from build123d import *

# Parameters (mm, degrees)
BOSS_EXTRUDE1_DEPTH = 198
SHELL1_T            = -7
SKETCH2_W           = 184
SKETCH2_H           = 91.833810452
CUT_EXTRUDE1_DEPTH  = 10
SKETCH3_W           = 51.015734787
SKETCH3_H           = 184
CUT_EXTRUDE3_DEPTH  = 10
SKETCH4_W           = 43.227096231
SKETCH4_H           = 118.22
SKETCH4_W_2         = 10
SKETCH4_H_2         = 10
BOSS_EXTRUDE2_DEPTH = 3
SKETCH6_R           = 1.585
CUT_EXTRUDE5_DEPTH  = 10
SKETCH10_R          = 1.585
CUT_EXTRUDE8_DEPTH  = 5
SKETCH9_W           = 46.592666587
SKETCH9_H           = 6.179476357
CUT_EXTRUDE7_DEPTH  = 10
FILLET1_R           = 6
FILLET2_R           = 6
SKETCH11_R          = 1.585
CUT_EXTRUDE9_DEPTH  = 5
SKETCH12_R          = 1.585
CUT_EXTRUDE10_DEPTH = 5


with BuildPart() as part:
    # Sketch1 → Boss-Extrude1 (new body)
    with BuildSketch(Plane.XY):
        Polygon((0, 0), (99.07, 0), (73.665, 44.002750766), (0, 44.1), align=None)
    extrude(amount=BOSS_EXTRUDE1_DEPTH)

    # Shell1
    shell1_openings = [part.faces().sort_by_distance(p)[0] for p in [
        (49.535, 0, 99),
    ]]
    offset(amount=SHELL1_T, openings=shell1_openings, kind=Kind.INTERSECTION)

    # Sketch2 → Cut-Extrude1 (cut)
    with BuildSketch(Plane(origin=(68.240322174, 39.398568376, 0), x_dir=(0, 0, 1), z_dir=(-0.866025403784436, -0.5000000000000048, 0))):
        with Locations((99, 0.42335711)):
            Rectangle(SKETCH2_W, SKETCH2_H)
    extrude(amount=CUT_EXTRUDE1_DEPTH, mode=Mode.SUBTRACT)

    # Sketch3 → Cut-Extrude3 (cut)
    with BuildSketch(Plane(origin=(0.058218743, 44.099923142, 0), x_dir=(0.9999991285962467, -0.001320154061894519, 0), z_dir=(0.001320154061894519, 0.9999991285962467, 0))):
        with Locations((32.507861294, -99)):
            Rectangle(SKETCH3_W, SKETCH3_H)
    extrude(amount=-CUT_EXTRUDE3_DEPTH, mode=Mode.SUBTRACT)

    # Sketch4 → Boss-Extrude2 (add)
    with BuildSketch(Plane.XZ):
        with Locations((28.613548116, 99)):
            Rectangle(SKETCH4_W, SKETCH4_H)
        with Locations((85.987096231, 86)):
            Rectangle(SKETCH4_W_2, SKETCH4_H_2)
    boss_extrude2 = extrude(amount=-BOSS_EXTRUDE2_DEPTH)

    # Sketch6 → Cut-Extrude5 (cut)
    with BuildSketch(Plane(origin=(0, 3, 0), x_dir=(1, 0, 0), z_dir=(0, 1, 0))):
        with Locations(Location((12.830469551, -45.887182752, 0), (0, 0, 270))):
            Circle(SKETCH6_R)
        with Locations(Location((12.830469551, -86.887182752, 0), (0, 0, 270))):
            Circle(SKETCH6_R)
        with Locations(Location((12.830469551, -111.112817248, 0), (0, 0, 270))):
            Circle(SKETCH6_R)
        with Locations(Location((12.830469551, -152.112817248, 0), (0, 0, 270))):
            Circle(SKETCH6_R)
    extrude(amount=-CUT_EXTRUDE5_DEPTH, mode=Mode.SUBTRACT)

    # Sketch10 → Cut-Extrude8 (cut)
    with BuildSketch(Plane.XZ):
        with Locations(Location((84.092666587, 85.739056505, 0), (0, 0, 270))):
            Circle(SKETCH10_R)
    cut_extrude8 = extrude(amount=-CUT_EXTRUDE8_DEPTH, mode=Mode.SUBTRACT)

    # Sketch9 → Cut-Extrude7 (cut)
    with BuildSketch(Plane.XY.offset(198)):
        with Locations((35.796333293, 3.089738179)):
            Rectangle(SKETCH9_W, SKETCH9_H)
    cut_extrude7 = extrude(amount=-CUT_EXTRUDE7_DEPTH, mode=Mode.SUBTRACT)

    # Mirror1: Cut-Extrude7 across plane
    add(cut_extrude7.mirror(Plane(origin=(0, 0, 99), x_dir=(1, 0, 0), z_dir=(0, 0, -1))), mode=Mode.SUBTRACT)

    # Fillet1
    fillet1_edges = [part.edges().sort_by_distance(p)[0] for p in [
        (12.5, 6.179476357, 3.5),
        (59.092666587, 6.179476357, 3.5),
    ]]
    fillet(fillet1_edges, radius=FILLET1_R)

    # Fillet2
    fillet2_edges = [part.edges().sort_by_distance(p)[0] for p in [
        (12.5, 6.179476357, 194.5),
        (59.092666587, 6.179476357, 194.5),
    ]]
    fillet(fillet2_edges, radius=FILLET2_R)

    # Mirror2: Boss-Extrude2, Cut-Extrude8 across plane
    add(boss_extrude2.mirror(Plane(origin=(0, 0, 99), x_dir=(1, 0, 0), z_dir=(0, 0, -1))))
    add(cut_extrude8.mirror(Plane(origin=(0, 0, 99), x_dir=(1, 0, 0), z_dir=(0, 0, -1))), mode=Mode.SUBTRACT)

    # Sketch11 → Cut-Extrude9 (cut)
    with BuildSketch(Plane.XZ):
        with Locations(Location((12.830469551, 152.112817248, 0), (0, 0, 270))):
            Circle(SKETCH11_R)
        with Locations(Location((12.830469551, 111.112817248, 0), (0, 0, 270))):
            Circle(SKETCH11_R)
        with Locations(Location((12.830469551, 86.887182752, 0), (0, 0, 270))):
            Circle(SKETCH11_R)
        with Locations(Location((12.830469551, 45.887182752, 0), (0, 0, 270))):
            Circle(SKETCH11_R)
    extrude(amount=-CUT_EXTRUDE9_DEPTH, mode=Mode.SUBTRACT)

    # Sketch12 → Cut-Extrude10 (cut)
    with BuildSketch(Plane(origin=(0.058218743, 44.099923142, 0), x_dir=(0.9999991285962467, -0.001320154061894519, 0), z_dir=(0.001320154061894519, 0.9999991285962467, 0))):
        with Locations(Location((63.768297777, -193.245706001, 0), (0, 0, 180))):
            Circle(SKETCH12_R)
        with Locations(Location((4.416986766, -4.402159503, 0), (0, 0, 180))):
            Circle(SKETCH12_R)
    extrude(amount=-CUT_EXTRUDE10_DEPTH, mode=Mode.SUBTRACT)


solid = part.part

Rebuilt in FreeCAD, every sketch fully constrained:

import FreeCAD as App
import Part
import Sketcher
from FreeCAD import Vector
Q = App.Units.Quantity


def edges_at(feature, points):
    """Names of the edges that pass closest to the given points."""
    edges = feature.Shape.Edges
    near = lambda p: min(range(len(edges)), key=lambda i: edges[i].distToShape(Part.Vertex(*p))[0])
    return sorted({f"Edge{near(p) + 1}" for p in points})


def faces_at(feature, points):
    """Names of the faces that lie closest to the given points."""
    faces = feature.Shape.Faces
    near = lambda p: min(range(len(faces)), key=lambda i: faces[i].distToShape(Part.Vertex(*p))[0])
    return sorted({f"Face{near(p) + 1}" for p in points})

doc = App.newDocument("Part")
params = doc.addObject("Spreadsheet::Sheet", "Params")
for row, (alias, value) in enumerate([
    ("sketch1_height", "44.1 mm"),
    ("sketch1_width", "99.07 mm"),
    ("sketch1_length", "50.81 mm"),
    ("pad1_length", "198 mm"),
    ("thickness_wall", "7 mm"),
    ("sketch2_width", "184 mm"),
    ("pocket1_length", "10 mm"),
    ("sketch3_height", "184 mm"),
    ("pocket2_length", "10 mm"),
    ("sketch4_width", "10 mm"),
    ("sketch4_height", "118.22 mm"),
    ("pad2_length", "3 mm"),
    ("sketch5_diameter", "3.17 mm"),
    ("pocket3_length", "10 mm"),
    ("sketch6_diameter", "3.17 mm"),
    ("pocket4_length", "5 mm"),
    ("pocket5_length", "10 mm"),
    ("fillet_radius", "6 mm"),
    ("fillet2_radius", "6 mm"),
    ("sketch8_diameter", "3.17 mm"),
    ("pocket6_length", "5 mm"),
    ("sketch9_diameter", "3.17 mm"),
    ("pocket7_length", "5 mm"),
], start=1):
    params.set(f"A{row}", alias)
    params.set(f"B{row}", "=" + value)
    params.setAlias(f"B{row}", alias)

body = doc.addObject("PartDesign::Body", "Body")

# Sketch on XY plane
sketch1 = doc.addObject("Sketcher::SketchObject", "Sketch")
body.addObject(sketch1)
sketch1.AttachmentSupport = (doc.XY_Plane, [""])
sketch1.MapMode = "FlatFace"
sketch1.addGeometry([
    Part.LineSegment(Vector(0, 0, 0), Vector(99.07, 0, 0)),
    Part.LineSegment(Vector(99.07, 0, 0), Vector(73.665, 44.002751, 0)),
    Part.LineSegment(Vector(73.665, 44.002751, 0), Vector(0, 44.1, 0)),
    Part.LineSegment(Vector(0, 44.1, 0), Vector(0, 0, 0)),
], False)
sketch1.addConstraint([
    Sketcher.Constraint("Coincident", 0, 2, 1, 1),
    Sketcher.Constraint("Coincident", 1, 2, 2, 1),
    Sketcher.Constraint("Coincident", 2, 2, 3, 1),
    Sketcher.Constraint("Coincident", 3, 2, 0, 1),
    Sketcher.Constraint("Horizontal", 0),
    Sketcher.Constraint("Vertical", 3),
    Sketcher.Constraint("Coincident", 3, 2, -1, 1),
    Sketcher.Constraint("Angle", 1, Q("120 deg")),
    Sketcher.Constraint("DistanceY", 3, 2, 3, 1, Q("44.1 mm")),
    Sketcher.Constraint("DistanceX", 0, 1, 0, 2, Q("99.07 mm")),
    Sketcher.Constraint("Distance", 1, Q("50.81 mm")),
])
sketch1.setExpression("Constraints[8]", "Params.sketch1_height")
sketch1.setExpression("Constraints[9]", "Params.sketch1_width")
sketch1.setExpression("Constraints[10]", "Params.sketch1_length")
pad1 = doc.addObject("PartDesign::Pad", "Pad")
body.addObject(pad1)
pad1.Profile = sketch1
pad1.setExpression("Length", "Params.pad1_length")
doc.recompute()

thickness = doc.addObject("PartDesign::Thickness", "Thickness")
body.addObject(thickness)
thickness.Base = (pad1, faces_at(pad1, [(49.535, 0, 99)]))
thickness.setExpression("Value", "Params.thickness_wall")
thickness.Reversed = True
thickness.Join = "Intersection"

# Sketch on an angled plane
sketch2 = doc.addObject("Sketcher::SketchObject", "Sketch001")
body.addObject(sketch2)
sketch2.Placement = App.Placement(Vector(68.240322, 39.398568, 0), App.Rotation(Vector(0, 0, 1), Vector(-0.5, 0.866025404, 0), Vector(-0.866025404, -0.5, 0), "ZXY"))
sketch2.addGeometry([
    Part.LineSegment(Vector(7, 46.340262, 0), Vector(7, -45.493548, 0)),
    Part.LineSegment(Vector(7, -45.493548, 0), Vector(191, -45.493548, 0)),
    Part.LineSegment(Vector(191, -45.493548, 0), Vector(191, 46.340262, 0)),
    Part.LineSegment(Vector(191, 46.340262, 0), Vector(7, 46.340262, 0)),
], False)
sketch2.addConstraint([
    Sketcher.Constraint("Coincident", 0, 2, 1, 1),
    Sketcher.Constraint("Coincident", 1, 2, 2, 1),
    Sketcher.Constraint("Coincident", 2, 2, 3, 1),
    Sketcher.Constraint("Coincident", 3, 2, 0, 1),
    Sketcher.Constraint("Vertical", 0),
    Sketcher.Constraint("Horizontal", 1),
    Sketcher.Constraint("Vertical", 2),
    Sketcher.Constraint("Horizontal", 3),
    Sketcher.Constraint("DistanceX", 1, 1, 1, 2, Q("184 mm")),
    Sketcher.Constraint("DistanceX", -1, 1, 0, 2, Q("7 mm")),
    Sketcher.Constraint("DistanceY", 0, 2, 0, 1, Q("91.83381 mm")),
    Sketcher.Constraint("DistanceY", 0, 2, -1, 1, Q("45.493548 mm")),
])
sketch2.setExpression("Constraints[8]", "Params.sketch2_width")
pocket1 = doc.addObject("PartDesign::Pocket", "Pocket")
body.addObject(pocket1)
pocket1.Profile = sketch2
pocket1.setExpression("Length", "Params.pocket1_length")
pocket1.Reversed = True

# Sketch on an angled plane
sketch3 = doc.addObject("Sketcher::SketchObject", "Sketch002")
body.addObject(sketch3)
sketch3.Placement = App.Placement(Vector(0.058219, 44.099923, 0), App.Rotation(Vector(0.999999129, -0.001320154, 0), Vector(0, 0, -1.000000001), Vector(0.001320154, 0.999999129, 0), "ZXY"))
sketch3.addGeometry([
    Part.LineSegment(Vector(6.999994, -7, 0), Vector(6.999994, -191, 0)),
    Part.LineSegment(Vector(6.999994, -191, 0), Vector(58.015729, -191, 0)),
    Part.LineSegment(Vector(58.015729, -191, 0), Vector(58.015729, -7, 0)),
    Part.LineSegment(Vector(58.015729, -7, 0), Vector(6.999994, -7, 0)),
], False)
sketch3.addConstraint([
    Sketcher.Constraint("Coincident", 0, 2, 1, 1),
    Sketcher.Constraint("Coincident", 1, 2, 2, 1),
    Sketcher.Constraint("Coincident", 2, 2, 3, 1),
    Sketcher.Constraint("Coincident", 3, 2, 0, 1),
    Sketcher.Constraint("Vertical", 0),
    Sketcher.Constraint("Horizontal", 1),
    Sketcher.Constraint("Vertical", 2),
    Sketcher.Constraint("Horizontal", 3),
    Sketcher.Constraint("DistanceY", 0, 2, 0, 1, Q("184 mm")),
    Sketcher.Constraint("DistanceY", 0, 2, -1, 1, Q("191 mm")),
    Sketcher.Constraint("DistanceX", 1, 1, 1, 2, Q("51.015735 mm")),
    Sketcher.Constraint("DistanceX", -1, 1, 1, 2, Q("58.015729 mm")),
])
sketch3.setExpression("Constraints[8]", "Params.sketch3_height")
pocket2 = doc.addObject("PartDesign::Pocket", "Pocket001")
body.addObject(pocket2)
pocket2.Profile = sketch3
pocket2.setExpression("Length", "Params.pocket2_length")

# Sketch on XZ plane
sketch4 = doc.addObject("Sketcher::SketchObject", "Sketch003")
body.addObject(sketch4)
sketch4.AttachmentSupport = (doc.XZ_Plane, [""])
sketch4.MapMode = "FlatFace"
sketch4.addGeometry([
    Part.LineSegment(Vector(7, 158.11, 0), Vector(7, 39.89, 0)),  # 0
    Part.LineSegment(Vector(7, 39.89, 0), Vector(50.227096, 39.89, 0)),  # 1
    Part.LineSegment(Vector(50.227096, 39.89, 0), Vector(50.227096, 158.11, 0)),  # 2
    Part.LineSegment(Vector(50.227096, 158.11, 0), Vector(7, 158.11, 0)),  # 3
    Part.LineSegment(Vector(80.987096, 91, 0), Vector(80.987096, 81, 0)),  # 4
    Part.LineSegment(Vector(80.987096, 81, 0), Vector(90.987096, 81, 0)),  # 5
    Part.LineSegment(Vector(90.987096, 81, 0), Vector(90.987096, 91, 0)),  # 6
    Part.LineSegment(Vector(90.987096, 91, 0), Vector(80.987096, 91, 0)),  # 7
], False)
sketch4.addConstraint([
    Sketcher.Constraint("Coincident", 0, 2, 1, 1),
    Sketcher.Constraint("Coincident", 1, 2, 2, 1),
    Sketcher.Constraint("Coincident", 2, 2, 3, 1),
    Sketcher.Constraint("Coincident", 3, 2, 0, 1),
    Sketcher.Constraint("Coincident", 4, 2, 5, 1),
    Sketcher.Constraint("Coincident", 5, 2, 6, 1),
    Sketcher.Constraint("Coincident", 6, 2, 7, 1),
    Sketcher.Constraint("Coincident", 7, 2, 4, 1),
    Sketcher.Constraint("Vertical", 0),
    Sketcher.Constraint("Horizontal", 1),
    Sketcher.Constraint("Vertical", 2),
    Sketcher.Constraint("Horizontal", 3),
    Sketcher.Constraint("Vertical", 4),
    Sketcher.Constraint("Horizontal", 5),
    Sketcher.Constraint("Vertical", 6),
    Sketcher.Constraint("Horizontal", 7),
    Sketcher.Constraint("Equal", 7, 4),
    Sketcher.Constraint("DistanceX", 5, 1, 5, 2, Q("10 mm")),
    Sketcher.Constraint("DistanceX", -1, 1, 0, 2, Q("7 mm")),
    Sketcher.Constraint("DistanceY", -1, 1, 4, 2, Q("81 mm")),
    Sketcher.Constraint("DistanceY", 0, 2, 0, 1, Q("118.22 mm")),
    Sketcher.Constraint("DistanceY", -1, 1, 0, 2, Q("39.89 mm")),
    Sketcher.Constraint("DistanceX", 1, 2, 4, 2, Q("30.76 mm")),
    Sketcher.Constraint("DistanceX", 1, 1, 1, 2, Q("43.227096 mm")),
])
sketch4.setExpression("Constraints[17]", "Params.sketch4_width")
sketch4.setExpression("Constraints[20]", "Params.sketch4_height")
pad2 = doc.addObject("PartDesign::Pad", "Pad001")
body.addObject(pad2)
pad2.Profile = sketch4
pad2.setExpression("Length", "Params.pad2_length")
pad2.Reversed = True

# Sketch on XZ plane
sketch5 = doc.addObject("Sketcher::SketchObject", "Sketch004")
body.addObject(sketch5)
sketch5.AttachmentSupport = (doc.XZ_Plane, [""])
sketch5.MapMode = "FlatFace"
sketch5.AttachmentOffset = App.Placement(Vector(0, 0, -3), App.Rotation())
sketch5.addGeometry([
    Part.Circle(Vector(12.83047, 45.887183, 0), Vector(0, 0, 1), 1.585),
    Part.Circle(Vector(12.83047, 86.887183, 0), Vector(0, 0, 1), 1.585),
    Part.Circle(Vector(12.83047, 111.112817, 0), Vector(0, 0, 1), 1.585),
    Part.Circle(Vector(12.83047, 152.112817, 0), Vector(0, 0, 1), 1.585),
], False)
sketch5.addConstraint([
    Sketcher.Constraint("Equal", 0, 1),
    Sketcher.Constraint("Equal", 1, 2),
    Sketcher.Constraint("Equal", 2, 3),
    Sketcher.Constraint("Vertical", 0, 3, 1, 3),
    Sketcher.Constraint("Vertical", 1, 3, 2, 3),
    Sketcher.Constraint("Vertical", 2, 3, 3, 3),
    Sketcher.Constraint("Diameter", 0, Q("3.17 mm")),
    Sketcher.Constraint("DistanceY", 0, 3, 1, 3, Q("41 mm")),
    Sketcher.Constraint("DistanceY", 2, 3, 3, 3, Q("41 mm")),
    Sketcher.Constraint("DistanceX", -1, 1, 0, 3, Q("12.83047 mm")),
    Sketcher.Constraint("DistanceY", -1, 1, 0, 3, Q("45.887183 mm")),
    Sketcher.Constraint("DistanceY", -1, 1, 2, 3, Q("111.112817 mm")),
])
sketch5.setExpression("Constraints[6]", "Params.sketch5_diameter")
pocket3 = doc.addObject("PartDesign::Pocket", "Pocket002")
body.addObject(pocket3)
pocket3.Profile = sketch5
pocket3.setExpression("Length", "Params.pocket3_length")
pocket3.Reversed = True

# Sketch on XZ plane
sketch6 = doc.addObject("Sketcher::SketchObject", "Sketch005")
body.addObject(sketch6)
sketch6.AttachmentSupport = (doc.XZ_Plane, [""])
sketch6.MapMode = "FlatFace"
sketch6.addGeometry(Part.Circle(Vector(84.092667, 85.739057, 0), Vector(0, 0, 1), 1.585), False)
sketch6.addConstraint([
    Sketcher.Constraint("Diameter", 0, Q("3.17 mm")),
    Sketcher.Constraint("DistanceX", -1, 1, 0, 3, Q("84.092667 mm")),
    Sketcher.Constraint("DistanceY", -1, 1, 0, 3, Q("85.739057 mm")),
])
sketch6.setExpression("Constraints[0]", "Params.sketch6_diameter")
pocket4 = doc.addObject("PartDesign::Pocket", "Pocket003")
body.addObject(pocket4)
pocket4.Profile = sketch6
pocket4.setExpression("Length", "Params.pocket4_length")

# Sketch on XY plane
sketch7 = doc.addObject("Sketcher::SketchObject", "Sketch006")
body.addObject(sketch7)
sketch7.AttachmentSupport = (doc.XY_Plane, [""])
sketch7.MapMode = "FlatFace"
sketch7.AttachmentOffset = App.Placement(Vector(0, 0, 198), App.Rotation())
sketch7.addGeometry([
    Part.LineSegment(Vector(12.5, 6.179476, 0), Vector(12.5, 0, 0)),
    Part.LineSegment(Vector(12.5, 0, 0), Vector(59.092667, 0, 0)),
    Part.LineSegment(Vector(59.092667, 0, 0), Vector(59.092667, 6.179476, 0)),
    Part.LineSegment(Vector(59.092667, 6.179476, 0), Vector(12.5, 6.179476, 0)),
], False)
sketch7.addConstraint([
    Sketcher.Constraint("Coincident", 0, 2, 1, 1),
    Sketcher.Constraint("Coincident", 1, 2, 2, 1),
    Sketcher.Constraint("Coincident", 2, 2, 3, 1),
    Sketcher.Constraint("Coincident", 3, 2, 0, 1),
    Sketcher.Constraint("Vertical", 0),
    Sketcher.Constraint("Horizontal", 1),
    Sketcher.Constraint("Vertical", 2),
    Sketcher.Constraint("Horizontal", 3),
    Sketcher.Constraint("PointOnObject", 0, 2, -1),
    Sketcher.Constraint("DistanceX", -1, 1, 0, 2, Q("12.5 mm")),
    Sketcher.Constraint("DistanceX", 1, 1, 1, 2, Q("46.592667 mm")),
    Sketcher.Constraint("DistanceY", 0, 2, 0, 1, Q("6.179476 mm")),
])
pocket5 = doc.addObject("PartDesign::Pocket", "Pocket004")
body.addObject(pocket5)
pocket5.Profile = sketch7
pocket5.setExpression("Length", "Params.pocket5_length")
doc.recompute()

datumplane = doc.addObject("PartDesign::Plane", "DatumPlane")
body.addObject(datumplane)
datumplane.AttachmentSupport = (doc.XY_Plane, [""])
datumplane.MapMode = "FlatFace"
datumplane.AttachmentOffset = App.Placement(Vector(0, 0, 99), App.Rotation())
mirrored = doc.addObject("PartDesign::Mirrored", "Mirrored")
body.addObject(mirrored)
mirrored.Originals = [pocket5]
mirrored.MirrorPlane = (datumplane, [""])
body.Tip = mirrored
doc.recompute()

fillet = doc.addObject("PartDesign::Fillet", "Fillet")
body.addObject(fillet)
fillet.Base = (mirrored, edges_at(mirrored, [(12.5, 6.179, 3.5), (59.093, 6.179, 3.5)]))
fillet.setExpression("Radius", "Params.fillet_radius")
doc.recompute()

fillet2 = doc.addObject("PartDesign::Fillet", "Fillet001")
body.addObject(fillet2)
fillet2.Base = (fillet, edges_at(fillet, [(12.5, 6.179, 194.5), (59.093, 6.179, 194.5)]))
fillet2.setExpression("Radius", "Params.fillet2_radius")
doc.recompute()

datumplane2 = doc.addObject("PartDesign::Plane", "DatumPlane001")
body.addObject(datumplane2)
datumplane2.AttachmentSupport = (doc.XY_Plane, [""])
datumplane2.MapMode = "FlatFace"
datumplane2.AttachmentOffset = App.Placement(Vector(0, 0, 99), App.Rotation())
mirrored2 = doc.addObject("PartDesign::Mirrored", "Mirrored001")
body.addObject(mirrored2)
mirrored2.Originals = [pad2, pocket4]
mirrored2.MirrorPlane = (datumplane2, [""])
body.Tip = mirrored2

# Sketch on XZ plane
sketch8 = doc.addObject("Sketcher::SketchObject", "Sketch007")
body.addObject(sketch8)
sketch8.AttachmentSupport = (doc.XZ_Plane, [""])
sketch8.MapMode = "FlatFace"
sketch8.addGeometry([
    Part.Circle(Vector(12.83047, 152.112817, 0), Vector(0, 0, 1), 1.585),
    Part.Circle(Vector(12.83047, 111.112817, 0), Vector(0, 0, 1), 1.585),
    Part.Circle(Vector(12.83047, 86.887183, 0), Vector(0, 0, 1), 1.585),
    Part.Circle(Vector(12.83047, 45.887183, 0), Vector(0, 0, 1), 1.585),
], False)
sketch8.addConstraint([
    Sketcher.Constraint("Equal", 0, 1),
    Sketcher.Constraint("Equal", 1, 2),
    Sketcher.Constraint("Equal", 2, 3),
    Sketcher.Constraint("Vertical", 0, 3, 1, 3),
    Sketcher.Constraint("Vertical", 1, 3, 2, 3),
    Sketcher.Constraint("Vertical", 2, 3, 3, 3),
    Sketcher.Constraint("Diameter", 0, Q("3.17 mm")),
    Sketcher.Constraint("DistanceY", 1, 3, 0, 3, Q("41 mm")),
    Sketcher.Constraint("DistanceY", 3, 3, 2, 3, Q("41 mm")),
    Sketcher.Constraint("DistanceX", -1, 1, 0, 3, Q("12.83047 mm")),
    Sketcher.Constraint("DistanceY", -1, 1, 0, 3, Q("152.112817 mm")),
    Sketcher.Constraint("DistanceY", -1, 1, 2, 3, Q("86.887183 mm")),
])
sketch8.setExpression("Constraints[6]", "Params.sketch8_diameter")
pocket6 = doc.addObject("PartDesign::Pocket", "Pocket005")
body.addObject(pocket6)
pocket6.Profile = sketch8
pocket6.setExpression("Length", "Params.pocket6_length")

# Sketch on an angled plane
sketch9 = doc.addObject("Sketcher::SketchObject", "Sketch008")
body.addObject(sketch9)
sketch9.Placement = App.Placement(Vector(0.058219, 44.099923, 0), App.Rotation(Vector(0.999999129, -0.001320154, 0), Vector(0, 0, -1.000000001), Vector(0.001320154, 0.999999129, 0), "ZXY"))
sketch9.addGeometry([
    Part.Circle(Vector(63.768298, -193.245706, 0), Vector(0, 0, 1), 1.585),
    Part.Circle(Vector(4.416987, -4.40216, 0), Vector(0, 0, 1), 1.585),
], False)
sketch9.addConstraint([
    Sketcher.Constraint("Equal", 0, 1),
    Sketcher.Constraint("Diameter", 0, Q("3.17 mm")),
    Sketcher.Constraint("DistanceY", 1, 3, -1, 1, Q("4.40216 mm")),
    Sketcher.Constraint("DistanceX", 1, 3, 0, 3, Q("59.351311 mm")),
    Sketcher.Constraint("DistanceX", -1, 1, 0, 3, Q("63.768298 mm")),
    Sketcher.Constraint("DistanceY", 0, 3, -1, 1, Q("193.245706 mm")),
])
sketch9.setExpression("Constraints[1]", "Params.sketch9_diameter")
pocket7 = doc.addObject("PartDesign::Pocket", "Pocket006")
body.addObject(pocket7)
pocket7.Profile = sketch9
pocket7.setExpression("Length", "Params.pocket7_length")

doc.recompute()
